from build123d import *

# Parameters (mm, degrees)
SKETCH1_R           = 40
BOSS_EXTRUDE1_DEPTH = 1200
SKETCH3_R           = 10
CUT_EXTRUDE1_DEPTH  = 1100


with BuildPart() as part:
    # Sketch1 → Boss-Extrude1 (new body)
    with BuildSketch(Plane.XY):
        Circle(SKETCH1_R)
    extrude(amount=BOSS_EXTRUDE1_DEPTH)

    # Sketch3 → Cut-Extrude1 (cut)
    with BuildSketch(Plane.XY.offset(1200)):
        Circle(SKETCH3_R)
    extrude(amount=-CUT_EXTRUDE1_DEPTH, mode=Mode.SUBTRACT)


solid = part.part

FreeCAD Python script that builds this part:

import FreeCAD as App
import Part
import Sketcher
from FreeCAD import Vector
Q = App.Units.Quantity

doc = App.newDocument("Part")
params = doc.addObject("Spreadsheet::Sheet", "Params")
for row, (alias, value) in enumerate([
    ("sketch1_diameter", "80 mm"),
    ("pad1_length", "1200 mm"),
    ("sketch2_diameter", "20 mm"),
    ("pocket1_length", "1100 mm"),
], start=1):
    params.set(f"A{row}", alias)
    params.set(f"B{row}", "=" + value)
    params.setAlias(f"B{row}", alias)

body = doc.addObject("PartDesign::Body", "Body")

# Sketch on XY plane
sketch1 = doc.addObject("Sketcher::SketchObject", "Sketch")
body.addObject(sketch1)
sketch1.AttachmentSupport = (doc.XY_Plane, [""])
sketch1.MapMode = "FlatFace"
sketch1.addGeometry(Part.Circle(Vector(0, 0, 0), Vector(0, 0, 1), 40), False)
sketch1.addConstraint(Sketcher.Constraint("Coincident", 0, 3, -1, 1))
sketch1.addConstraint(Sketcher.Constraint("Diameter", 0, Q("80 mm")))
sketch1.setExpression("Constraints[1]", "Params.sketch1_diameter")
pad1 = doc.addObject("PartDesign::Pad", "Pad")
body.addObject(pad1)
pad1.Profile = sketch1
pad1.setExpression("Length", "Params.pad1_length")

# Sketch on XY plane
sketch2 = doc.addObject("Sketcher::SketchObject", "Sketch001")
body.addObject(sketch2)
sketch2.AttachmentSupport = (doc.XY_Plane, [""])
sketch2.MapMode = "FlatFace"
sketch2.AttachmentOffset = App.Placement(Vector(0, 0, 1200), App.Rotation())
sketch2.addGeometry(Part.Circle(Vector(0, 0, 0), Vector(0, 0, 1), 10), False)
sketch2.addConstraint(Sketcher.Constraint("Coincident", 0, 3, -1, 1))
sketch2.addConstraint(Sketcher.Constraint("Diameter", 0, Q("20 mm")))
sketch2.setExpression("Constraints[1]", "Params.sketch2_diameter")
pocket1 = doc.addObject("PartDesign::Pocket", "Pocket")
body.addObject(pocket1)
pocket1.Profile = sketch2
pocket1.setExpression("Length", "Params.pocket1_length")

doc.recompute()
